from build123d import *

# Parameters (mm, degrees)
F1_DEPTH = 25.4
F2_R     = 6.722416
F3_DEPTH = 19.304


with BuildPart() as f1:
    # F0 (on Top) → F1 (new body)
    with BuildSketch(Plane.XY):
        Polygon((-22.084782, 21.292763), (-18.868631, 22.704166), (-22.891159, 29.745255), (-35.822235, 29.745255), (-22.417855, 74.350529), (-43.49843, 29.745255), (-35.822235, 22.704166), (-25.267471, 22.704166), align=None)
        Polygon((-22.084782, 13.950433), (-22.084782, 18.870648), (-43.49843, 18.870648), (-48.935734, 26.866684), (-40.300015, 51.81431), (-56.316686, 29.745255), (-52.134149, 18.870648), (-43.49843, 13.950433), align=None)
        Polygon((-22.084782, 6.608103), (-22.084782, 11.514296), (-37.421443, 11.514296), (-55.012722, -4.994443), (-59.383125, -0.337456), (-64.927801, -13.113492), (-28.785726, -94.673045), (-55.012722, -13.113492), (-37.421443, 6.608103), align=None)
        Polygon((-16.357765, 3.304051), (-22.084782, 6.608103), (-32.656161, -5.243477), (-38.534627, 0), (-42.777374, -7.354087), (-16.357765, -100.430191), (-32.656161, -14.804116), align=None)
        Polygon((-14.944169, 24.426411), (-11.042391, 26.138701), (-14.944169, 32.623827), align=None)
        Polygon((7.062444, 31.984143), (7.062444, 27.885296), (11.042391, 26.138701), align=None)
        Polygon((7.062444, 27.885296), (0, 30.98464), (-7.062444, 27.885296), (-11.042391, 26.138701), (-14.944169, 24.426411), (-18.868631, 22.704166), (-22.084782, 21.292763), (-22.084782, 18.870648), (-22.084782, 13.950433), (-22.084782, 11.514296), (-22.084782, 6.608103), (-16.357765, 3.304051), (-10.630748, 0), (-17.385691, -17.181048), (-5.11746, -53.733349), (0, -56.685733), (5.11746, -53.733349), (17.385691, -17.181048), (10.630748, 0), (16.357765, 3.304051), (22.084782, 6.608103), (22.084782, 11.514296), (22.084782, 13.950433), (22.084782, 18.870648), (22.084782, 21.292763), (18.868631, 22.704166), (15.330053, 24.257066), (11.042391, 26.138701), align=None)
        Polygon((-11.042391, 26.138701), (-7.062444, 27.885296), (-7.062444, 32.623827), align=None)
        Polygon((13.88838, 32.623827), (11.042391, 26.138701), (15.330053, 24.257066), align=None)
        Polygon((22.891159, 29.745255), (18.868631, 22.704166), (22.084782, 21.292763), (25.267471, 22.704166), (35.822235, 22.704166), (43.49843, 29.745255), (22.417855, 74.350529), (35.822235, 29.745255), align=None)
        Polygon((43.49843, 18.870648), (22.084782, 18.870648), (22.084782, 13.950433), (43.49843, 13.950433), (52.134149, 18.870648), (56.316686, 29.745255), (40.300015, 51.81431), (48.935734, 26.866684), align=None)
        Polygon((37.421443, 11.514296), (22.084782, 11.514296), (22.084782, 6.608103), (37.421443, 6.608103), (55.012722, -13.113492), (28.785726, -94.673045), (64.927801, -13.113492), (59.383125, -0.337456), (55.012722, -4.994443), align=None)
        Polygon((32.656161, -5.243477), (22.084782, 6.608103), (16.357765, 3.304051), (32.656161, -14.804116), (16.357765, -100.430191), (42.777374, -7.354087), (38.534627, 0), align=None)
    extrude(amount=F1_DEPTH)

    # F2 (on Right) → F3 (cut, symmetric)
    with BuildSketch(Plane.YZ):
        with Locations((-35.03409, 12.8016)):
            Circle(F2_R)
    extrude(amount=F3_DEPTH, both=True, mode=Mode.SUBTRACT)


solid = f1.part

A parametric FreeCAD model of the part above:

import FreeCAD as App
import Part
import Sketcher
from FreeCAD import Vector
Q = App.Units.Quantity

doc = App.newDocument("Part")
body = doc.addObject("PartDesign::Body", "Body")

# Sketch on XY plane
sketch1 = body.newObject("Sketcher::SketchObject", "Sketch")
sketch1.AttachmentSupport = (doc.getObject("XY_Plane"), [""])
sketch1.MapMode = "FlatFace"
sketch1.addGeometry([
    Part.LineSegment(Vector(-18.868631, 22.704166, 0), Vector(-22.891159, 29.745255, 0)),  # 0
    Part.LineSegment(Vector(-22.891159, 29.745255, 0), Vector(-35.822235, 29.745255, 0)),  # 1
    Part.LineSegment(Vector(-35.822235, 29.745255, 0), Vector(-22.417855, 74.350529, 0)),  # 2
    Part.LineSegment(Vector(-22.417855, 74.350529, 0), Vector(-43.49843, 29.745255, 0)),  # 3
    Part.LineSegment(Vector(-43.49843, 29.745255, 0), Vector(-35.822235, 22.704166, 0)),  # 4
    Part.LineSegment(Vector(-35.822235, 22.704166, 0), Vector(-25.267471, 22.704166, 0)),  # 5
    Part.LineSegment(Vector(-25.267471, 22.704166, 0), Vector(-22.084782, 21.292763, 0)),  # 6
    Part.LineSegment(Vector(-22.084782, 21.292763, 0), Vector(-22.084782, 18.870648, 0)),  # 7
    Part.LineSegment(Vector(-22.084782, 18.870648, 0), Vector(-43.49843, 18.870648, 0)),  # 8
    Part.LineSegment(Vector(-43.49843, 18.870648, 0), Vector(-48.935734, 26.866684, 0)),  # 9
    Part.LineSegment(Vector(-48.935734, 26.866684, 0), Vector(-40.300015, 51.81431, 0)),  # 10
    Part.LineSegment(Vector(-40.300015, 51.81431, 0), Vector(-56.316686, 29.745255, 0)),  # 11
    Part.LineSegment(Vector(-56.316686, 29.745255, 0), Vector(-52.134149, 18.870648, 0)),  # 12
    Part.LineSegment(Vector(-52.134149, 18.870648, 0), Vector(-43.49843, 13.950433, 0)),  # 13
    Part.LineSegment(Vector(-43.49843, 13.950433, 0), Vector(-22.084782, 13.950433, 0)),  # 14
    Part.LineSegment(Vector(-22.084782, 13.950433, 0), Vector(-22.084782, 11.514296, 0)),  # 15
    Part.LineSegment(Vector(-22.084782, 11.514296, 0), Vector(-37.421443, 11.514296, 0)),  # 16
    Part.LineSegment(Vector(-37.421443, 11.514296, 0), Vector(-55.012722, -4.994443, 0)),  # 17
    Part.LineSegment(Vector(-55.012722, -4.994443, 0), Vector(-59.383125, -0.337456, 0)),  # 18
    Part.LineSegment(Vector(-59.383125, -0.337456, 0), Vector(-64.927801, -13.113492, 0)),  # 19
    Part.LineSegment(Vector(-64.927801, -13.113492, 0), Vector(-28.785726, -94.673045, 0)),  # 20
    Part.LineSegment(Vector(-28.785726, -94.673045, 0), Vector(-55.012722, -13.113492, 0)),  # 21
    Part.LineSegment(Vector(-55.012722, -13.113492, 0), Vector(-37.421443, 6.608103, 0)),  # 22
    Part.LineSegment(Vector(-37.421443, 6.608103, 0), Vector(-22.084782, 6.608103, 0)),  # 23
    Part.LineSegment(Vector(-22.084782, 6.608103, 0), Vector(-32.656161, -5.243477, 0)),  # 24
    Part.LineSegment(Vector(-32.656161, -5.243477, 0), Vector(-38.534627, 0, 0)),  # 25
    Part.LineSegment(Vector(-38.534627, 0, 0), Vector(-42.777374, -7.354087, 0)),  # 26
    Part.LineSegment(Vector(-42.777374, -7.354087, 0), Vector(-16.357765, -100.430191, 0)),  # 27
    Part.LineSegment(Vector(-16.357765, -100.430191, 0), Vector(-32.656161, -14.804116, 0)),  # 28
    Part.LineSegment(Vector(-32.656161, -14.804116, 0), Vector(-16.357765, 3.304051, 0)),  # 29
    Part.LineSegment(Vector(-16.357765, 3.304051, 0), Vector(-10.630748, 0, 0)),  # 30
    Part.LineSegment(Vector(-10.630748, 0, 0), Vector(-17.385691, -17.181048, 0)),  # 31
    Part.LineSegment(Vector(-17.385691, -17.181048, 0), Vector(-5.11746, -53.733349, 0)),  # 32
    Part.LineSegment(Vector(-5.11746, -53.733349, 0), Vector(0, -56.685733, 0)),  # 33
    Part.LineSegment(Vector(0, -56.685733, 0), Vector(5.11746, -53.733349, 0)),  # 34
    Part.LineSegment(Vector(5.11746, -53.733349, 0), Vector(17.385691, -17.181048, 0)),  # 35
    Part.LineSegment(Vector(17.385691, -17.181048, 0), Vector(10.630748, 0, 0)),  # 36
    Part.LineSegment(Vector(10.630748, 0, 0), Vector(16.357765, 3.304051, 0)),  # 37
    Part.LineSegment(Vector(16.357765, 3.304051, 0), Vector(32.656161, -14.804116, 0)),  # 38
    Part.LineSegment(Vector(32.656161, -14.804116, 0), Vector(16.357765, -100.430191, 0)),  # 39
    Part.LineSegment(Vector(16.357765, -100.430191, 0), Vector(42.777374, -7.354087, 0)),  # 40
    Part.LineSegment(Vector(42.777374, -7.354087, 0), Vector(38.534627, 0, 0)),  # 41
    Part.LineSegment(Vector(38.534627, 0, 0), Vector(32.656161, -5.243477, 0)),  # 42
    Part.LineSegment(Vector(32.656161, -5.243477, 0), Vector(22.084782, 6.608103, 0)),  # 43
    Part.LineSegment(Vector(22.084782, 6.608103, 0), Vector(37.421443, 6.608103, 0)),  # 44
    Part.LineSegment(Vector(37.421443, 6.608103, 0), Vector(55.012722, -13.113492, 0)),  # 45
    Part.LineSegment(Vector(55.012722, -13.113492, 0), Vector(28.785726, -94.673045, 0)),  # 46
    Part.LineSegment(Vector(28.785726, -94.673045, 0), Vector(64.927801, -13.113492, 0)),  # 47
    Part.LineSegment(Vector(64.927801, -13.113492, 0), Vector(59.383125, -0.337456, 0)),  # 48
    Part.LineSegment(Vector(59.383125, -0.337456, 0), Vector(55.012722, -4.994443, 0)),  # 49
    Part.LineSegment(Vector(55.012722, -4.994443, 0), Vector(37.421443, 11.514296, 0)),  # 50
    Part.LineSegment(Vector(37.421443, 11.514296, 0), Vector(22.084782, 11.514296, 0)),  # 51
    Part.LineSegment(Vector(22.084782, 11.514296, 0), Vector(22.084782, 13.950433, 0)),  # 52
    Part.LineSegment(Vector(22.084782, 13.950433, 0), Vector(43.49843, 13.950433, 0)),  # 53
    Part.LineSegment(Vector(43.49843, 13.950433, 0), Vector(52.134149, 18.870648, 0)),  # 54
    Part.LineSegment(Vector(52.134149, 18.870648, 0), Vector(56.316686, 29.745255, 0)),  # 55
    Part.LineSegment(Vector(56.316686, 29.745255, 0), Vector(40.300015, 51.81431, 0)),  # 56
    Part.LineSegment(Vector(40.300015, 51.81431, 0), Vector(48.935734, 26.866684, 0)),  # 57
    Part.LineSegment(Vector(48.935734, 26.866684, 0), Vector(43.49843, 18.870648, 0)),  # 58
    Part.LineSegment(Vector(43.49843, 18.870648, 0), Vector(22.084782, 18.870648, 0)),  # 59
    Part.LineSegment(Vector(22.084782, 18.870648, 0), Vector(22.084782, 21.292763, 0)),  # 60
    Part.LineSegment(Vector(22.084782, 21.292763, 0), Vector(25.267471, 22.704166, 0)),  # 61
    Part.LineSegment(Vector(25.267471, 22.704166, 0), Vector(35.822235, 22.704166, 0)),  # 62
    Part.LineSegment(Vector(35.822235, 22.704166, 0), Vector(43.49843, 29.745255, 0)),  # 63
    Part.LineSegment(Vector(43.49843, 29.745255, 0), Vector(22.417855, 74.350529, 0)),  # 64
    Part.LineSegment(Vector(22.417855, 74.350529, 0), Vector(35.822235, 29.745255, 0)),  # 65
    Part.LineSegment(Vector(35.822235, 29.745255, 0), Vector(22.891159, 29.745255, 0)),  # 66
    Part.LineSegment(Vector(22.891159, 29.745255, 0), Vector(18.868631, 22.704166, 0)),  # 67
    Part.LineSegment(Vector(18.868631, 22.704166, 0), Vector(15.330053, 24.257066, 0)),  # 68
    Part.LineSegment(Vector(15.330053, 24.257066, 0), Vector(13.88838, 32.623827, 0)),  # 69
    Part.LineSegment(Vector(13.88838, 32.623827, 0), Vector(11.042391, 26.138701, 0)),  # 70
    Part.LineSegment(Vector(11.042391, 26.138701, 0), Vector(7.062444, 31.984143, 0)),  # 71
    Part.LineSegment(Vector(7.062444, 31.984143, 0), Vector(7.062444, 27.885296, 0)),  # 72
    Part.LineSegment(Vector(7.062444, 27.885296, 0), Vector(0, 30.98464, 0)),  # 73
    Part.LineSegment(Vector(0, 30.98464, 0), Vector(-7.062444, 27.885296, 0)),  # 74
    Part.LineSegment(Vector(-7.062444, 27.885296, 0), Vector(-7.062444, 32.623827, 0)),  # 75
    Part.LineSegment(Vector(-7.062444, 32.623827, 0), Vector(-11.042391, 26.138701, 0)),  # 76
    Part.LineSegment(Vector(-11.042391, 26.138701, 0), Vector(-14.944169, 32.623827, 0)),  # 77
    Part.LineSegment(Vector(-14.944169, 32.623827, 0), Vector(-14.944169, 24.426411, 0)),  # 78
    Part.LineSegment(Vector(-14.944169, 24.426411, 0), Vector(-18.868631, 22.704166, 0)),  # 79
], False)
sketch1.addConstraint([
    Sketcher.Constraint("Coincident", 0, 2, 1, 1),
    Sketcher.Constraint("Coincident", 1, 2, 2, 1),
    Sketcher.Constraint("Coincident", 2, 2, 3, 1),
    Sketcher.Constraint("Coincident", 3, 2, 4, 1),
    Sketcher.Constraint("Coincident", 4, 2, 5, 1),
    Sketcher.Constraint("Coincident", 5, 2, 6, 1),
    Sketcher.Constraint("Coincident", 6, 2, 7, 1),
    Sketcher.Constraint("Coincident", 7, 2, 8, 1),
    Sketcher.Constraint("Coincident", 8, 2, 9, 1),
    Sketcher.Constraint("Coincident", 9, 2, 10, 1),
    Sketcher.Constraint("Coincident", 10, 2, 11, 1),
    Sketcher.Constraint("Coincident", 11, 2, 12, 1),
    Sketcher.Constraint("Coincident", 12, 2, 13, 1),
    Sketcher.Constraint("Coincident", 13, 2, 14, 1),
    Sketcher.Constraint("Coincident", 14, 2, 15, 1),
    Sketcher.Constraint("Coincident", 15, 2, 16, 1),
    Sketcher.Constraint("Coincident", 16, 2, 17, 1),
    Sketcher.Constraint("Coincident", 17, 2, 18, 1),
    Sketcher.Constraint("Coincident", 18, 2, 19, 1),
    Sketcher.Constraint("Coincident", 19, 2, 20, 1),
    Sketcher.Constraint("Coincident", 20, 2, 21, 1),
    Sketcher.Constraint("Coincident", 21, 2, 22, 1),
    Sketcher.Constraint("Coincident", 22, 2, 23, 1),
    Sketcher.Constraint("Coincident", 23, 2, 24, 1),
    Sketcher.Constraint("Coincident", 24, 2, 25, 1),
    Sketcher.Constraint("Coincident", 25, 2, 26, 1),
    Sketcher.Constraint("Coincident", 26, 2, 27, 1),
    Sketcher.Constraint("Coincident", 27, 2, 28, 1),
    Sketcher.Constraint("Coincident", 28, 2, 29, 1),
    Sketcher.Constraint("Coincident", 29, 2, 30, 1),
    Sketcher.Constraint("Coincident", 30, 2, 31, 1),
    Sketcher.Constraint("Coincident", 31, 2, 32, 1),
    Sketcher.Constraint("Coincident", 32, 2, 33, 1),
    Sketcher.Constraint("Coincident", 33, 2, 34, 1),
    Sketcher.Constraint("Coincident", 34, 2, 35, 1),
    Sketcher.Constraint("Coincident", 35, 2, 36, 1),
    Sketcher.Constraint("Coincident", 36, 2, 37, 1),
    Sketcher.Constraint("Coincident", 37, 2, 38, 1),
    Sketcher.Constraint("Coincident", 38, 2, 39, 1),
    Sketcher.Constraint("Coincident", 39, 2, 40, 1),
    Sketcher.Constraint("Coincident", 40, 2, 41, 1),
    Sketcher.Constraint("Coincident", 41, 2, 42, 1),
    Sketcher.Constraint("Coincident", 42, 2, 43, 1),
    Sketcher.Constraint("Coincident", 43, 2, 44, 1),
    Sketcher.Constraint("Coincident", 44, 2, 45, 1),
    Sketcher.Constraint("Coincident", 45, 2, 46, 1),
    Sketcher.Constraint("Coincident", 46, 2, 47, 1),
    Sketcher.Constraint("Coincident", 47, 2, 48, 1),
    Sketcher.Constraint("Coincident", 48, 2, 49, 1),
    Sketcher.Constraint("Coincident", 49, 2, 50, 1),
    Sketcher.Constraint("Coincident", 50, 2, 51, 1),
    Sketcher.Constraint("Coincident", 51, 2, 52, 1),
    Sketcher.Constraint("Coincident", 52, 2, 53, 1),
    Sketcher.Constraint("Coincident", 53, 2, 54, 1),
    Sketcher.Constraint("Coincident", 54, 2, 55, 1),
    Sketcher.Constraint("Coincident", 55, 2, 56, 1),
    Sketcher.Constraint("Coincident", 56, 2, 57, 1),
    Sketcher.Constraint("Coincident", 57, 2, 58, 1),
    Sketcher.Constraint("Coincident", 58, 2, 59, 1),
    Sketcher.Constraint("Coincident", 59, 2, 60, 1),
    Sketcher.Constraint("Coincident", 60, 2, 61, 1),
    Sketcher.Constraint("Coincident", 61, 2, 62, 1),
    Sketcher.Constraint("Coincident", 62, 2, 63, 1),
    Sketcher.Constraint("Coincident", 63, 2, 64, 1),
    Sketcher.Constraint("Coincident", 64, 2, 65, 1),
    Sketcher.Constraint("Coincident", 65, 2, 66, 1),
    Sketcher.Constraint("Coincident", 66, 2, 67, 1),
    Sketcher.Constraint("Coincident", 67, 2, 68, 1),
    Sketcher.Constraint("Coincident", 68, 2, 69, 1),
    Sketcher.Constraint("Coincident", 69, 2, 70, 1),
    Sketcher.Constraint("Coincident", 70, 2, 71, 1),
    Sketcher.Constraint("Coincident", 71, 2, 72, 1),
    Sketcher.Constraint("Coincident", 72, 2, 73, 1),
    Sketcher.Constraint("Coincident", 73, 2, 74, 1),
    Sketcher.Constraint("Coincident", 74, 2, 75, 1),
    Sketcher.Constraint("Coincident", 75, 2, 76, 1),
    Sketcher.Constraint("Coincident", 76, 2, 77, 1),
    Sketcher.Constraint("Coincident", 77, 2, 78, 1),
    Sketcher.Constraint("Coincident", 78, 2, 79, 1),
    Sketcher.Constraint("Coincident", 79, 2, 0, 1),
    Sketcher.Constraint("Horizontal", 1),
    Sketcher.Constraint("Horizontal", 5),
    Sketcher.Constraint("Vertical", 7),
    Sketcher.Constraint("Horizontal", 8),
    Sketcher.Constraint("Horizontal", 14),
    Sketcher.Constraint("Vertical", 15),
    Sketcher.Constraint("Horizontal", 16),
    Sketcher.Constraint("Horizontal", 23),
    Sketcher.Constraint("Horizontal", 44),
    Sketcher.Constraint("Horizontal", 51),
    Sketcher.Constraint("Vertical", 52),
    Sketcher.Constraint("Horizontal", 53),
    Sketcher.Constraint("Horizontal", 59),
    Sketcher.Constraint("Vertical", 60),
    Sketcher.Constraint("Horizontal", 62),
    Sketcher.Constraint("Horizontal", 66),
    Sketcher.Constraint("Vertical", 72),
    Sketcher.Constraint("Vertical", 75),
    Sketcher.Constraint("Vertical", 78),
    Sketcher.Constraint("Symmetric", 30, 2, 36, 2, -1, 1),
    Sketcher.Constraint("Symmetric", 25, 2, 41, 2, -1, 1),
    Sketcher.Constraint("Symmetric", 32, 2, 34, 2, -2),
    Sketcher.Constraint("Symmetric", 31, 2, 35, 2, -2),
    Sketcher.Constraint("Symmetric", 29, 2, 37, 2, -2),
    Sketcher.Constraint("Symmetric", 28, 2, 38, 2, -2),
    Sketcher.Constraint("Symmetric", 27, 2, 39, 2, -2),
    Sketcher.Constraint("Symmetric", 26, 2, 40, 2, -2),
    Sketcher.Constraint("Symmetric", 24, 2, 42, 2, -2),
    Sketcher.Constraint("Symmetric", 23, 2, 43, 2, -2),
    Sketcher.Constraint("Symmetric", 21, 2, 45, 2, -2),
    Sketcher.Constraint("Symmetric", 20, 2, 46, 2, -2),
    Sketcher.Constraint("Symmetric", 19, 2, 47, 2, -2),
    Sketcher.Constraint("Symmetric", 18, 2, 48, 2, -2),
    Sketcher.Constraint("Symmetric", 17, 2, 49, 2, -2),
    Sketcher.Constraint("Symmetric", 16, 2, 50, 2, -2),
    Sketcher.Constraint("Symmetric", 14, 2, 52, 2, -2),
    Sketcher.Constraint("Symmetric", 12, 2, 54, 2, -2),
    Sketcher.Constraint("Symmetric", 11, 2, 55, 2, -2),
    Sketcher.Constraint("Symmetric", 10, 2, 56, 2, -2),
    Sketcher.Constraint("Symmetric", 9, 2, 57, 2, -2),
    Sketcher.Constraint("Symmetric", 8, 2, 58, 2, -2),
    Sketcher.Constraint("Symmetric", 6, 2, 60, 2, -2),
    Sketcher.Constraint("Symmetric", 5, 2, 61, 2, -2),
    Sketcher.Constraint("Symmetric", 3, 2, 63, 2, -2),
    Sketcher.Constraint("Symmetric", 2, 2, 64, 2, -2),
    Sketcher.Constraint("Symmetric", 1, 2, 65, 2, -2),
    Sketcher.Constraint("Symmetric", 72, 2, 74, 2, -2),
    Sketcher.Constraint("Symmetric", 70, 2, 76, 2, -2),
    Sketcher.Constraint("Symmetric", 67, 2, 79, 2, -2),
    Sketcher.Constraint("PointOnObject", 25, 2, -1),
    Sketcher.Constraint("PointOnObject", 30, 2, -1),
    Sketcher.Constraint("PointOnObject", 33, 2, -2),
    Sketcher.Constraint("PointOnObject", 73, 2, -2),
    Sketcher.Constraint("Perpendicular", 17, 18),
    Sketcher.Constraint("Parallel", 22, 24),
    Sketcher.Constraint("Perpendicular", 24, 25),
    Sketcher.Constraint("Perpendicular", 26, 30),
    Sketcher.Constraint("Parallel", 30, 33),
    Sketcher.Constraint("Parallel", 43, 45),
    Sketcher.Constraint("Perpendicular", 68, 70),
    Sketcher.Constraint("Perpendicular", 70, 73),
    Sketcher.Constraint("Parallel", 74, 79),
    Sketcher.Constraint("Horizontal", 1, 2, 3, 2),
    Sketcher.Constraint("Horizontal", 3, 2, 11, 2),
    Sketcher.Constraint("Horizontal", 8, 2, 12, 2),
    Sketcher.Constraint("Horizontal", 19, 2, 21, 2),
    Sketcher.Constraint("Horizontal", 62, 2, 67, 2),
    Sketcher.Constraint("Horizontal", 69, 2, 75, 2),
    Sketcher.Constraint("Horizontal", 75, 2, 77, 2),
    Sketcher.Constraint("Vertical", 1, 2, 4, 2),
    Sketcher.Constraint("Vertical", 3, 2, 8, 2),
    Sketcher.Constraint("Vertical", 8, 2, 13, 2),
    Sketcher.Constraint("Vertical", 7, 2, 14, 2),
    Sketcher.Constraint("Vertical", 17, 2, 21, 2),
    Sketcher.Constraint("Vertical", 16, 2, 22, 2),
    Sketcher.Constraint("Vertical", 15, 2, 23, 2),
    Sketcher.Constraint("Vertical", 24, 2, 28, 2),
    Sketcher.Constraint("Vertical", 27, 2, 29, 2),
    Sketcher.Constraint("Vertical", 53, 2, 58, 2),
    Sketcher.Constraint("Vertical", 62, 2, 65, 2),
    Sketcher.Constraint("Equal", 1, 66),
    Sketcher.Constraint("Distance", 13, Q("0.3913001 in")),
    Sketcher.Constraint("Distance", 33, Q("0.2326001 in")),
    Sketcher.Constraint("Distance", 3, Q("49.335799 mm")),
    Sketcher.Constraint("Distance", 17, Q("24.124501 mm")),
    Sketcher.Constraint("Distance", 20, Q("89.208802 mm")),
    Sketcher.Constraint("Distance", 26, Q("8.4902 mm")),
    Sketcher.Constraint("DistanceX", 16, 2, 16, 1, Q("15.336661 mm")),
    Sketcher.Constraint("DistanceY", 75, 1, 75, 2, Q("4.738531 mm")),
    Sketcher.Constraint("DistanceX", 19, 2, -1, 1, Q("64.927801 mm")),
    Sketcher.Constraint("DistanceY", -1, 1, 70, 2, Q("26.138701 mm")),
    Sketcher.Constraint("Distance", 0, Q("8.10911 mm")),
    Sketcher.Constraint("Distance", 2, Q("46.575829 mm")),
    Sketcher.Constraint("Distance", 12, Q("11.65121 mm")),
    Sketcher.Constraint("Distance", 19, Q("13.92733 mm")),
    Sketcher.Constraint("Distance", 25, Q("7.877208 mm")),
    Sketcher.Constraint("Distance", 27, Q("96.753072 mm")),
    Sketcher.Constraint("Distance", 30, Q("6.611768 mm")),
    Sketcher.Constraint("Distance", 68, Q("3.864328 mm")),
    Sketcher.Constraint("Distance", 69, Q("8.49006 mm")),
    Sketcher.Constraint("Distance", 73, Q("7.71259 mm")),
    Sketcher.Constraint("DistanceX", 1, 2, 1, 1, Q("12.931076 mm")),
    Sketcher.Constraint("DistanceX", 5, 1, 5, 2, Q("10.554764 mm")),
    Sketcher.Constraint("DistanceX", 8, 2, 8, 1, Q("21.413648 mm")),
    Sketcher.Constraint("DistanceY", 7, 2, 7, 1, Q("2.422115 mm")),
    Sketcher.Constraint("DistanceY", 15, 2, 15, 1, Q("2.436137 mm")),
    Sketcher.Constraint("DistanceY", 72, 2, 72, 1, Q("4.098847 mm")),
    Sketcher.Constraint("DistanceY", 78, 2, 78, 1, Q("8.197416 mm")),
    Sketcher.Constraint("DistanceX", 0, 2, -1, 1, Q("22.891159 mm")),
    Sketcher.Constraint("DistanceY", -1, 1, 2, 2, Q("74.350529 mm")),
    Sketcher.Constraint("DistanceX", 3, 2, -1, 1, Q("43.49843 mm")),
    Sketcher.Constraint("DistanceY", -1, 1, 10, 2, Q("51.81431 mm")),
    Sketcher.Constraint("DistanceX", 12, 2, -1, 1, Q("52.134149 mm")),
    Sketcher.Constraint("DistanceX", 17, 2, -1, 1, Q("55.012722 mm")),
    Sketcher.Constraint("DistanceX", 24, 2, -1, 1, Q("32.656161 mm")),
    Sketcher.Constraint("DistanceY", 27, 2, -1, 1, Q("100.430191 mm")),
    Sketcher.Constraint("DistanceY", -1, 1, 29, 2, Q("3.304051 mm")),
    Sketcher.Constraint("DistanceX", 31, 2, -1, 1, Q("17.385691 mm")),
    Sketcher.Constraint("DistanceY", 31, 2, -1, 1, Q("17.181048 mm")),
    Sketcher.Constraint("DistanceY", 32, 2, -1, 1, Q("53.733349 mm")),
    Sketcher.Constraint("DistanceX", -1, 1, 67, 2, Q("18.868631 mm")),
    Sketcher.Constraint("DistanceX", -1, 1, 69, 2, Q("13.88838 mm")),
    Sketcher.Constraint("DistanceX", -1, 1, 70, 2, Q("11.042391 mm")),
    Sketcher.Constraint("Distance", 6, Q("3.481604 mm")),
    Sketcher.Constraint("Distance", 9, Q("9.669585 mm")),
    Sketcher.Constraint("Distance", 10, Q("26.399994 mm")),
    Sketcher.Constraint("Distance", 11, Q("27.268607 mm")),
    Sketcher.Constraint("Distance", 18, Q("6.386544 mm")),
    Sketcher.Constraint("Distance", 21, Q("85.672726 mm")),
    Sketcher.Constraint("Distance", 28, Q("87.163424 mm")),
])
pad1 = body.newObject("PartDesign::Pad", "Pad")
pad1.Profile = sketch1
pad1.Length = Q("1 in")

# Sketch on YZ plane
sketch2 = body.newObject("Sketcher::SketchObject", "Sketch001")
sketch2.AttachmentSupport = (doc.getObject("YZ_Plane"), [""])
sketch2.MapMode = "FlatFace"
sketch2.addGeometry(Part.Circle(Vector(-35.03409, 12.8016, 0), Vector(0, 0, 1), 6.722416), False)
sketch2.addConstraint([
    Sketcher.Constraint("DistanceY", -1, 1, 0, 3, Q("0.504 in")),
    Sketcher.Constraint("Diameter", 0, Q("13.444832 mm")),
    Sketcher.Constraint("DistanceX", 0, 3, -1, 1, Q("35.03409 mm")),
])
pocket1 = body.newObject("PartDesign::Pocket", "Pocket")
pocket1.Profile = sketch2
pocket1.Length = Q("1.52 in")
pocket1.Midplane = True

doc.recompute()
